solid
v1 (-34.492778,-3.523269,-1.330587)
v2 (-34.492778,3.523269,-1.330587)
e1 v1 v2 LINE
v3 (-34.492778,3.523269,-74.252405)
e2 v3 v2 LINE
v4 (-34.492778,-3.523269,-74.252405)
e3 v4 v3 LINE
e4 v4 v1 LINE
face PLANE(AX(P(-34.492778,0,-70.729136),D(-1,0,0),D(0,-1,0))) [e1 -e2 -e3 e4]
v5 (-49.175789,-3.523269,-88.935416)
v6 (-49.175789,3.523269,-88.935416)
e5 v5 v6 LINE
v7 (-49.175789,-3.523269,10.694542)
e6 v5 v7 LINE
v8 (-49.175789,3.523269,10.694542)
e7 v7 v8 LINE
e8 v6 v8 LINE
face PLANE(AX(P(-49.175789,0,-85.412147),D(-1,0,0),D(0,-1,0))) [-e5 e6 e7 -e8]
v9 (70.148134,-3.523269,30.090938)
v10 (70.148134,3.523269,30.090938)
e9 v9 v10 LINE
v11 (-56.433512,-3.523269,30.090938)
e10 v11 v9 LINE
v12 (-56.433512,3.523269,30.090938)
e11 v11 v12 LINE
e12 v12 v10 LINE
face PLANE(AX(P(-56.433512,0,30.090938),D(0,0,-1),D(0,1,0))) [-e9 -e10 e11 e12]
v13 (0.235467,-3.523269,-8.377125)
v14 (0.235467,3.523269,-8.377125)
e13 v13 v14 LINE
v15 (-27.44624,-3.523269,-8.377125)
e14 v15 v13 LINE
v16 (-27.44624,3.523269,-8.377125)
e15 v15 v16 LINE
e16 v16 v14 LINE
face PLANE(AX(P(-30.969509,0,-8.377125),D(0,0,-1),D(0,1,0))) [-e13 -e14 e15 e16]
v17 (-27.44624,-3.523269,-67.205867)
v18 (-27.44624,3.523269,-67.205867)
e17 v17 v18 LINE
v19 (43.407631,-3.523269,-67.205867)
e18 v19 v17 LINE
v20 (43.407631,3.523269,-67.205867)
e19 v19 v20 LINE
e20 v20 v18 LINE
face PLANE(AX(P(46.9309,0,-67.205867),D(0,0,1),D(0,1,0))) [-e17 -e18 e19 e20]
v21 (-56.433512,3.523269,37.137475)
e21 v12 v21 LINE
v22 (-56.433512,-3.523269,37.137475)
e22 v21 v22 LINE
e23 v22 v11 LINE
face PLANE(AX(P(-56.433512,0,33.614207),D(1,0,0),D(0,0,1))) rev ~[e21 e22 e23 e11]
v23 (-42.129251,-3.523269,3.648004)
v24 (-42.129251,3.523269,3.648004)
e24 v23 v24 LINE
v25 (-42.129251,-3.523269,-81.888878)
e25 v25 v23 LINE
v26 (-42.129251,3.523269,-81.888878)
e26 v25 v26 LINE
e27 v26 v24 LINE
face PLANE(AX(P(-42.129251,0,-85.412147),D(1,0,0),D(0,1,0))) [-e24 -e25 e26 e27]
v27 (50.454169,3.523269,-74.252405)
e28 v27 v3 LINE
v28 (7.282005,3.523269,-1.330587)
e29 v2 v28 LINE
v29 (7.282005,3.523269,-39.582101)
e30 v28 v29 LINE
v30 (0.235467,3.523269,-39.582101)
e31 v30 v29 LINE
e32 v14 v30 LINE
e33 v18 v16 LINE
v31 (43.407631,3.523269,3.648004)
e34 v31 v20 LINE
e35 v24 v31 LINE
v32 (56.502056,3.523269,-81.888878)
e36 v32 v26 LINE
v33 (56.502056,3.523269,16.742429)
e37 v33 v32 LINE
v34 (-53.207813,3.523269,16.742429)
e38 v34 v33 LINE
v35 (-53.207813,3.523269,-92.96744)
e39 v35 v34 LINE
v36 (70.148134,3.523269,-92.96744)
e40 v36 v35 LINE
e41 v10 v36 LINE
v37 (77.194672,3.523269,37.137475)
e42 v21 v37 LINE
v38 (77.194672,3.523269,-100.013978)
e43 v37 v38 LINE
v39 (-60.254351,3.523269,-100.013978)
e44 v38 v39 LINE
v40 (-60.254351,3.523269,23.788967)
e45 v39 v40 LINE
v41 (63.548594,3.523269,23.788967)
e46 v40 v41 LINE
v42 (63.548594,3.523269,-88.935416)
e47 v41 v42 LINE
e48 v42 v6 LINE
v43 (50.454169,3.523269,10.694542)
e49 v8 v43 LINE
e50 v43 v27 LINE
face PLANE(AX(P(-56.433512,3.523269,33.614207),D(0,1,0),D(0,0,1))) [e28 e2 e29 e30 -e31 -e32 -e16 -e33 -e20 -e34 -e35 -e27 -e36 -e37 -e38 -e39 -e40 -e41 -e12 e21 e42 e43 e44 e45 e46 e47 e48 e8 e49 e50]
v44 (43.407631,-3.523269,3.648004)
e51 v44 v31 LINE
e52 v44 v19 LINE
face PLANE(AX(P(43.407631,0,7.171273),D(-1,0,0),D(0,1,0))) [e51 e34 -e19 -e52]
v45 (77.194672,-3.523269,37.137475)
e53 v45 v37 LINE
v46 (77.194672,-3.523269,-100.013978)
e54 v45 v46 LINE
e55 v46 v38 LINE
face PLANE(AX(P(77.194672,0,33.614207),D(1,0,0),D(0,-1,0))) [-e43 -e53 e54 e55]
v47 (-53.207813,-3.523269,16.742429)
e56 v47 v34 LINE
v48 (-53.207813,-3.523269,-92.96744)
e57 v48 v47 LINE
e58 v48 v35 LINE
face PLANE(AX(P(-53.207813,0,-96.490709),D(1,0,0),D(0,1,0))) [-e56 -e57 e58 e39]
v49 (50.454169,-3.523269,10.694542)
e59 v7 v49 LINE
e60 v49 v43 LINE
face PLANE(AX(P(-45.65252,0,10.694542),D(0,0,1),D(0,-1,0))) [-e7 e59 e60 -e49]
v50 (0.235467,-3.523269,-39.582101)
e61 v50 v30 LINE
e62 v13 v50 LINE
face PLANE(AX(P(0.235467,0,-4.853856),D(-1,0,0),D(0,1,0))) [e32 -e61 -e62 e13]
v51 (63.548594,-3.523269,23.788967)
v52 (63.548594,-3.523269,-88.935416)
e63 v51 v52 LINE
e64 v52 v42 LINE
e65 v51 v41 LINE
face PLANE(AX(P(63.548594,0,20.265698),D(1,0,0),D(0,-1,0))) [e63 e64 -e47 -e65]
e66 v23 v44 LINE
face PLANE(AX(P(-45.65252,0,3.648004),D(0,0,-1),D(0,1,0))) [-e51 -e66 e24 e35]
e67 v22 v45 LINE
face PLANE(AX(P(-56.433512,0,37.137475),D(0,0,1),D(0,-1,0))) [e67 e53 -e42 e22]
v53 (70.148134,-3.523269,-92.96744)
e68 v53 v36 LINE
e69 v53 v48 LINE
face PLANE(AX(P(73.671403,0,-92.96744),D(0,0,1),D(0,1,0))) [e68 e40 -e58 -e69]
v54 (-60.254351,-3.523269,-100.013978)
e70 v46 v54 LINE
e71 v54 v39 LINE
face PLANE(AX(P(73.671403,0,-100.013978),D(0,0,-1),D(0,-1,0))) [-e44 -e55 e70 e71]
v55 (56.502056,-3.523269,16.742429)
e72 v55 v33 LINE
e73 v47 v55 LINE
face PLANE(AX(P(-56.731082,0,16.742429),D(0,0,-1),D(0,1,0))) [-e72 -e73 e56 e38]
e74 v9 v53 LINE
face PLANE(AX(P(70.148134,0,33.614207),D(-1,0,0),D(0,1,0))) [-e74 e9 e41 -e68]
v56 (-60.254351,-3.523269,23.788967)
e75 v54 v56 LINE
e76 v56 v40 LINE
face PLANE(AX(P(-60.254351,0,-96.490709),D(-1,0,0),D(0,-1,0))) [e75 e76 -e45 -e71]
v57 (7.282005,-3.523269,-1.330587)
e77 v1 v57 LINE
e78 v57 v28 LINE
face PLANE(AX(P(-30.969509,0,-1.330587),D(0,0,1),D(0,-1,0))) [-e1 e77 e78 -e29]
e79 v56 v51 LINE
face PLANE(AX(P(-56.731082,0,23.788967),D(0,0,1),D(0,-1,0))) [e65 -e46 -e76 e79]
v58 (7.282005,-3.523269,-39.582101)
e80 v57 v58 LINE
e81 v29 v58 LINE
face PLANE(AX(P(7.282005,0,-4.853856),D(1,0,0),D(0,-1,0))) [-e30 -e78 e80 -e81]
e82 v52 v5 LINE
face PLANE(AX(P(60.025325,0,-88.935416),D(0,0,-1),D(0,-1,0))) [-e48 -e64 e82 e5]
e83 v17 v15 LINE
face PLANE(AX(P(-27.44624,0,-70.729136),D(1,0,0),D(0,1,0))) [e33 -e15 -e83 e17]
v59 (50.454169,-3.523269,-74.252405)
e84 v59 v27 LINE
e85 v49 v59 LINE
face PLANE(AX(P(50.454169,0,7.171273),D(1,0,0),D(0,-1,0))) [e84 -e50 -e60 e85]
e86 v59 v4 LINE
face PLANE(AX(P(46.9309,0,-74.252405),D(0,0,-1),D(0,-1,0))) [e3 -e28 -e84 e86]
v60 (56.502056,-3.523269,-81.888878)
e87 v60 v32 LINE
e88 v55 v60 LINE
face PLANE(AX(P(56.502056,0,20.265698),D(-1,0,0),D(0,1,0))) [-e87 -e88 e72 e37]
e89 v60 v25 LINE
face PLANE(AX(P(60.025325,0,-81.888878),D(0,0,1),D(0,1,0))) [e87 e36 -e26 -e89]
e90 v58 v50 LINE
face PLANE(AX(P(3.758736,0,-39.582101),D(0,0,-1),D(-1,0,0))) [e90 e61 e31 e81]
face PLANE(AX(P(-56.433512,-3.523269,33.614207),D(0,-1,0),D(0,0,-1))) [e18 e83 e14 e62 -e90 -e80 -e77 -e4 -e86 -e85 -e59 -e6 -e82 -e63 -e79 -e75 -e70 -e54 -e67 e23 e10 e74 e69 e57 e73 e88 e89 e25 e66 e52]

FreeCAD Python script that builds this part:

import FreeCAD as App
import Part
import Sketcher


def add_polygon(sketch, points):
    """Adds a closed chain of lines whose ends are joined by coincident constraints."""
    first, n = sketch.GeometryCount, len(points)
    for a, b in zip(points, points[1:] + points[:1]):
        sketch.addGeometry(Part.LineSegment(App.Vector(*a, 0), App.Vector(*b, 0)), False)
    for i in range(n):
        sketch.addConstraint(Sketcher.Constraint("Coincident", first + i, 2, first + (i + 1) % n, 1))

doc = App.newDocument("Part")
body = doc.addObject("PartDesign::Body", "Body")

sketch1 = doc.addObject("Sketcher::SketchObject", "Sketch")
body.addObject(sketch1)
sketch1.AttachmentSupport = (doc.YZ_Plane, [""])
sketch1.MapMode = "FlatFace"
sketch1.AttachmentOffset = App.Placement(App.Vector(0, 0, -56.433512), App.Rotation())
add_polygon(sketch1, [(3.523269, 37.137475), (-3.523269, 37.137475), (-3.523269, 30.090938), (3.523269, 30.090938)])
sketch1.addConstraint(Sketcher.Constraint("Horizontal", 0))
sketch1.addConstraint(Sketcher.Constraint("Vertical", 1))
sketch1.addConstraint(Sketcher.Constraint("Horizontal", 2))
sketch1.addConstraint(Sketcher.Constraint("Vertical", 3))
sketch1.addConstraint(Sketcher.Constraint("Equal", 2, 1))
sketch1.addConstraint(Sketcher.Constraint("DistanceX", 0, 2, 0, 1, 7.046538))
sketch1.addConstraint(Sketcher.Constraint("DistanceX", 0, 2, -1, 1, 3.523269))
sketch1.addConstraint(Sketcher.Constraint("DistanceY", -1, 1, 0, 2, 37.137475))

sketch2 = doc.addObject("Sketcher::SketchObject", "Sketch001")
body.addObject(sketch2)
sketch2.AttachmentSupport = (doc.XZ_Plane, [""])
sketch2.MapMode = "FlatFace"
sketch2.addGeometry(Part.LineSegment(App.Vector(-56.433512, 33.614207, 0), App.Vector(73.671403, 33.614207, 0)), False)
sketch2.addGeometry(Part.LineSegment(App.Vector(73.671403, 33.614207, 0), App.Vector(73.671403, -96.490709, 0)), False)
sketch2.addGeometry(Part.LineSegment(App.Vector(73.671403, -96.490709, 0), App.Vector(-56.731082, -96.490709, 0)), False)
sketch2.addGeometry(Part.LineSegment(App.Vector(-56.731082, -96.490709, 0), App.Vector(-56.731082, 20.265698, 0)), False)
sketch2.addGeometry(Part.LineSegment(App.Vector(-56.731082, 20.265698, 0), App.Vector(60.025325, 20.265698, 0)), False)
sketch2.addGeometry(Part.LineSegment(App.Vector(60.025325, 20.265698, 0), App.Vector(60.025325, -85.412147, 0)), False)
sketch2.addGeometry(Part.LineSegment(App.Vector(60.025325, -85.412147, 0), App.Vector(-45.65252, -85.412147, 0)), False)
sketch2.addGeometry(Part.LineSegment(App.Vector(-45.65252, -85.412147, 0), App.Vector(-45.65252, 7.171273, 0)), False)
sketch2.addGeometry(Part.LineSegment(App.Vector(-45.65252, 7.171273, 0), App.Vector(46.9309, 7.171273, 0)), False)
sketch2.addGeometry(Part.LineSegment(App.Vector(46.9309, 7.171273, 0), App.Vector(46.9309, -70.729136, 0)), False)
sketch2.addGeometry(Part.LineSegment(App.Vector(46.9309, -70.729136, 0), App.Vector(-30.969509, -70.729136, 0)), False)
sketch2.addGeometry(Part.LineSegment(App.Vector(-30.969509, -70.729136, 0), App.Vector(-30.969509, -4.853856, 0)), False)
sketch2.addGeometry(Part.LineSegment(App.Vector(-30.969509, -4.853856, 0), App.Vector(3.758736, -4.853856, 0)), False)
sketch2.addGeometry(Part.LineSegment(App.Vector(3.758736, -4.853856, 0), App.Vector(3.758736, -39.582101, 0)), False)
sketch2.addConstraint(Sketcher.Constraint("Coincident", 0, 2, 1, 1))
sketch2.addConstraint(Sketcher.Constraint("Coincident", 1, 2, 2, 1))
sketch2.addConstraint(Sketcher.Constraint("Coincident", 2, 2, 3, 1))
sketch2.addConstraint(Sketcher.Constraint("Coincident", 3, 2, 4, 1))
sketch2.addConstraint(Sketcher.Constraint("Coincident", 4, 2, 5, 1))
sketch2.addConstraint(Sketcher.Constraint("Coincident", 5, 2, 6, 1))
sketch2.addConstraint(Sketcher.Constraint("Coincident", 6, 2, 7, 1))
sketch2.addConstraint(Sketcher.Constraint("Coincident", 7, 2, 8, 1))
sketch2.addConstraint(Sketcher.Constraint("Coincident", 8, 2, 9, 1))
sketch2.addConstraint(Sketcher.Constraint("Coincident", 9, 2, 10, 1))
sketch2.addConstraint(Sketcher.Constraint("Coincident", 10, 2, 11, 1))
sketch2.addConstraint(Sketcher.Constraint("Coincident", 11, 2, 12, 1))
sketch2.addConstraint(Sketcher.Constraint("Coincident", 12, 2, 13, 1))
sketch2.addConstraint(Sketcher.Constraint("Horizontal", 0))
sketch2.addConstraint(Sketcher.Constraint("Vertical", 1))
sketch2.addConstraint(Sketcher.Constraint("Horizontal", 2))
sketch2.addConstraint(Sketcher.Constraint("Vertical", 3))
sketch2.addConstraint(Sketcher.Constraint("Horizontal", 4))
sketch2.addConstraint(Sketcher.Constraint("Vertical", 5))
sketch2.addConstraint(Sketcher.Constraint("Horizontal", 6))
sketch2.addConstraint(Sketcher.Constraint("Vertical", 7))
sketch2.addConstraint(Sketcher.Constraint("Horizontal", 8))
sketch2.addConstraint(Sketcher.Constraint("Vertical", 9))
sketch2.addConstraint(Sketcher.Constraint("Horizontal", 10))
sketch2.addConstraint(Sketcher.Constraint("Vertical", 11))
sketch2.addConstraint(Sketcher.Constraint("Horizontal", 12))
sketch2.addConstraint(Sketcher.Constraint("Vertical", 13))
sketch2.addConstraint(Sketcher.Constraint("Equal", 0, 1))
sketch2.addConstraint(Sketcher.Constraint("Equal", 4, 3))
sketch2.addConstraint(Sketcher.Constraint("Equal", 6, 5))
sketch2.addConstraint(Sketcher.Constraint("Equal", 8, 7))
sketch2.addConstraint(Sketcher.Constraint("Equal", 10, 9))
sketch2.addConstraint(Sketcher.Constraint("Equal", 12, 13))
sketch2.addConstraint(Sketcher.Constraint("DistanceX", 8, 1, 8, 2, 92.58342))
sketch2.addConstraint(Sketcher.Constraint("DistanceX", 10, 2, 10, 1, 77.900409))
sketch2.addConstraint(Sketcher.Constraint("DistanceY", 11, 1, 11, 2, 65.87528))
sketch2.addConstraint(Sketcher.Constraint("DistanceY", -1, 1, 3, 2, 20.265698))
sketch2.addConstraint(Sketcher.Constraint("DistanceX", -1, 1, 8, 2, 46.9309))
sketch2.addConstraint(Sketcher.Constraint("DistanceY", 13, 2, -1, 1, 39.582101))
sketch2.addConstraint(Sketcher.Constraint("DistanceX", 0, 1, 0, 2, 130.104916))
sketch2.addConstraint(Sketcher.Constraint("DistanceX", 2, 2, 2, 1, 130.402486))
sketch2.addConstraint(Sketcher.Constraint("DistanceX", 4, 1, 4, 2, 116.756407))
sketch2.addConstraint(Sketcher.Constraint("DistanceX", 6, 2, 6, 1, 105.677845))
doc.recompute()

additivepipe = doc.addObject("PartDesign::AdditivePipe", "AdditivePipe")
body.addObject(additivepipe)
additivepipe.Profile = sketch1
additivepipe.Spine = (sketch2, ["Edge1", "Edge2", "Edge3", "Edge4", "Edge5", "Edge6", "Edge7", "Edge8", "Edge9", "Edge10", "Edge11", "Edge12", "Edge13", "Edge14"])
additivepipe.Transition = "Right corner"

doc.recompute()
